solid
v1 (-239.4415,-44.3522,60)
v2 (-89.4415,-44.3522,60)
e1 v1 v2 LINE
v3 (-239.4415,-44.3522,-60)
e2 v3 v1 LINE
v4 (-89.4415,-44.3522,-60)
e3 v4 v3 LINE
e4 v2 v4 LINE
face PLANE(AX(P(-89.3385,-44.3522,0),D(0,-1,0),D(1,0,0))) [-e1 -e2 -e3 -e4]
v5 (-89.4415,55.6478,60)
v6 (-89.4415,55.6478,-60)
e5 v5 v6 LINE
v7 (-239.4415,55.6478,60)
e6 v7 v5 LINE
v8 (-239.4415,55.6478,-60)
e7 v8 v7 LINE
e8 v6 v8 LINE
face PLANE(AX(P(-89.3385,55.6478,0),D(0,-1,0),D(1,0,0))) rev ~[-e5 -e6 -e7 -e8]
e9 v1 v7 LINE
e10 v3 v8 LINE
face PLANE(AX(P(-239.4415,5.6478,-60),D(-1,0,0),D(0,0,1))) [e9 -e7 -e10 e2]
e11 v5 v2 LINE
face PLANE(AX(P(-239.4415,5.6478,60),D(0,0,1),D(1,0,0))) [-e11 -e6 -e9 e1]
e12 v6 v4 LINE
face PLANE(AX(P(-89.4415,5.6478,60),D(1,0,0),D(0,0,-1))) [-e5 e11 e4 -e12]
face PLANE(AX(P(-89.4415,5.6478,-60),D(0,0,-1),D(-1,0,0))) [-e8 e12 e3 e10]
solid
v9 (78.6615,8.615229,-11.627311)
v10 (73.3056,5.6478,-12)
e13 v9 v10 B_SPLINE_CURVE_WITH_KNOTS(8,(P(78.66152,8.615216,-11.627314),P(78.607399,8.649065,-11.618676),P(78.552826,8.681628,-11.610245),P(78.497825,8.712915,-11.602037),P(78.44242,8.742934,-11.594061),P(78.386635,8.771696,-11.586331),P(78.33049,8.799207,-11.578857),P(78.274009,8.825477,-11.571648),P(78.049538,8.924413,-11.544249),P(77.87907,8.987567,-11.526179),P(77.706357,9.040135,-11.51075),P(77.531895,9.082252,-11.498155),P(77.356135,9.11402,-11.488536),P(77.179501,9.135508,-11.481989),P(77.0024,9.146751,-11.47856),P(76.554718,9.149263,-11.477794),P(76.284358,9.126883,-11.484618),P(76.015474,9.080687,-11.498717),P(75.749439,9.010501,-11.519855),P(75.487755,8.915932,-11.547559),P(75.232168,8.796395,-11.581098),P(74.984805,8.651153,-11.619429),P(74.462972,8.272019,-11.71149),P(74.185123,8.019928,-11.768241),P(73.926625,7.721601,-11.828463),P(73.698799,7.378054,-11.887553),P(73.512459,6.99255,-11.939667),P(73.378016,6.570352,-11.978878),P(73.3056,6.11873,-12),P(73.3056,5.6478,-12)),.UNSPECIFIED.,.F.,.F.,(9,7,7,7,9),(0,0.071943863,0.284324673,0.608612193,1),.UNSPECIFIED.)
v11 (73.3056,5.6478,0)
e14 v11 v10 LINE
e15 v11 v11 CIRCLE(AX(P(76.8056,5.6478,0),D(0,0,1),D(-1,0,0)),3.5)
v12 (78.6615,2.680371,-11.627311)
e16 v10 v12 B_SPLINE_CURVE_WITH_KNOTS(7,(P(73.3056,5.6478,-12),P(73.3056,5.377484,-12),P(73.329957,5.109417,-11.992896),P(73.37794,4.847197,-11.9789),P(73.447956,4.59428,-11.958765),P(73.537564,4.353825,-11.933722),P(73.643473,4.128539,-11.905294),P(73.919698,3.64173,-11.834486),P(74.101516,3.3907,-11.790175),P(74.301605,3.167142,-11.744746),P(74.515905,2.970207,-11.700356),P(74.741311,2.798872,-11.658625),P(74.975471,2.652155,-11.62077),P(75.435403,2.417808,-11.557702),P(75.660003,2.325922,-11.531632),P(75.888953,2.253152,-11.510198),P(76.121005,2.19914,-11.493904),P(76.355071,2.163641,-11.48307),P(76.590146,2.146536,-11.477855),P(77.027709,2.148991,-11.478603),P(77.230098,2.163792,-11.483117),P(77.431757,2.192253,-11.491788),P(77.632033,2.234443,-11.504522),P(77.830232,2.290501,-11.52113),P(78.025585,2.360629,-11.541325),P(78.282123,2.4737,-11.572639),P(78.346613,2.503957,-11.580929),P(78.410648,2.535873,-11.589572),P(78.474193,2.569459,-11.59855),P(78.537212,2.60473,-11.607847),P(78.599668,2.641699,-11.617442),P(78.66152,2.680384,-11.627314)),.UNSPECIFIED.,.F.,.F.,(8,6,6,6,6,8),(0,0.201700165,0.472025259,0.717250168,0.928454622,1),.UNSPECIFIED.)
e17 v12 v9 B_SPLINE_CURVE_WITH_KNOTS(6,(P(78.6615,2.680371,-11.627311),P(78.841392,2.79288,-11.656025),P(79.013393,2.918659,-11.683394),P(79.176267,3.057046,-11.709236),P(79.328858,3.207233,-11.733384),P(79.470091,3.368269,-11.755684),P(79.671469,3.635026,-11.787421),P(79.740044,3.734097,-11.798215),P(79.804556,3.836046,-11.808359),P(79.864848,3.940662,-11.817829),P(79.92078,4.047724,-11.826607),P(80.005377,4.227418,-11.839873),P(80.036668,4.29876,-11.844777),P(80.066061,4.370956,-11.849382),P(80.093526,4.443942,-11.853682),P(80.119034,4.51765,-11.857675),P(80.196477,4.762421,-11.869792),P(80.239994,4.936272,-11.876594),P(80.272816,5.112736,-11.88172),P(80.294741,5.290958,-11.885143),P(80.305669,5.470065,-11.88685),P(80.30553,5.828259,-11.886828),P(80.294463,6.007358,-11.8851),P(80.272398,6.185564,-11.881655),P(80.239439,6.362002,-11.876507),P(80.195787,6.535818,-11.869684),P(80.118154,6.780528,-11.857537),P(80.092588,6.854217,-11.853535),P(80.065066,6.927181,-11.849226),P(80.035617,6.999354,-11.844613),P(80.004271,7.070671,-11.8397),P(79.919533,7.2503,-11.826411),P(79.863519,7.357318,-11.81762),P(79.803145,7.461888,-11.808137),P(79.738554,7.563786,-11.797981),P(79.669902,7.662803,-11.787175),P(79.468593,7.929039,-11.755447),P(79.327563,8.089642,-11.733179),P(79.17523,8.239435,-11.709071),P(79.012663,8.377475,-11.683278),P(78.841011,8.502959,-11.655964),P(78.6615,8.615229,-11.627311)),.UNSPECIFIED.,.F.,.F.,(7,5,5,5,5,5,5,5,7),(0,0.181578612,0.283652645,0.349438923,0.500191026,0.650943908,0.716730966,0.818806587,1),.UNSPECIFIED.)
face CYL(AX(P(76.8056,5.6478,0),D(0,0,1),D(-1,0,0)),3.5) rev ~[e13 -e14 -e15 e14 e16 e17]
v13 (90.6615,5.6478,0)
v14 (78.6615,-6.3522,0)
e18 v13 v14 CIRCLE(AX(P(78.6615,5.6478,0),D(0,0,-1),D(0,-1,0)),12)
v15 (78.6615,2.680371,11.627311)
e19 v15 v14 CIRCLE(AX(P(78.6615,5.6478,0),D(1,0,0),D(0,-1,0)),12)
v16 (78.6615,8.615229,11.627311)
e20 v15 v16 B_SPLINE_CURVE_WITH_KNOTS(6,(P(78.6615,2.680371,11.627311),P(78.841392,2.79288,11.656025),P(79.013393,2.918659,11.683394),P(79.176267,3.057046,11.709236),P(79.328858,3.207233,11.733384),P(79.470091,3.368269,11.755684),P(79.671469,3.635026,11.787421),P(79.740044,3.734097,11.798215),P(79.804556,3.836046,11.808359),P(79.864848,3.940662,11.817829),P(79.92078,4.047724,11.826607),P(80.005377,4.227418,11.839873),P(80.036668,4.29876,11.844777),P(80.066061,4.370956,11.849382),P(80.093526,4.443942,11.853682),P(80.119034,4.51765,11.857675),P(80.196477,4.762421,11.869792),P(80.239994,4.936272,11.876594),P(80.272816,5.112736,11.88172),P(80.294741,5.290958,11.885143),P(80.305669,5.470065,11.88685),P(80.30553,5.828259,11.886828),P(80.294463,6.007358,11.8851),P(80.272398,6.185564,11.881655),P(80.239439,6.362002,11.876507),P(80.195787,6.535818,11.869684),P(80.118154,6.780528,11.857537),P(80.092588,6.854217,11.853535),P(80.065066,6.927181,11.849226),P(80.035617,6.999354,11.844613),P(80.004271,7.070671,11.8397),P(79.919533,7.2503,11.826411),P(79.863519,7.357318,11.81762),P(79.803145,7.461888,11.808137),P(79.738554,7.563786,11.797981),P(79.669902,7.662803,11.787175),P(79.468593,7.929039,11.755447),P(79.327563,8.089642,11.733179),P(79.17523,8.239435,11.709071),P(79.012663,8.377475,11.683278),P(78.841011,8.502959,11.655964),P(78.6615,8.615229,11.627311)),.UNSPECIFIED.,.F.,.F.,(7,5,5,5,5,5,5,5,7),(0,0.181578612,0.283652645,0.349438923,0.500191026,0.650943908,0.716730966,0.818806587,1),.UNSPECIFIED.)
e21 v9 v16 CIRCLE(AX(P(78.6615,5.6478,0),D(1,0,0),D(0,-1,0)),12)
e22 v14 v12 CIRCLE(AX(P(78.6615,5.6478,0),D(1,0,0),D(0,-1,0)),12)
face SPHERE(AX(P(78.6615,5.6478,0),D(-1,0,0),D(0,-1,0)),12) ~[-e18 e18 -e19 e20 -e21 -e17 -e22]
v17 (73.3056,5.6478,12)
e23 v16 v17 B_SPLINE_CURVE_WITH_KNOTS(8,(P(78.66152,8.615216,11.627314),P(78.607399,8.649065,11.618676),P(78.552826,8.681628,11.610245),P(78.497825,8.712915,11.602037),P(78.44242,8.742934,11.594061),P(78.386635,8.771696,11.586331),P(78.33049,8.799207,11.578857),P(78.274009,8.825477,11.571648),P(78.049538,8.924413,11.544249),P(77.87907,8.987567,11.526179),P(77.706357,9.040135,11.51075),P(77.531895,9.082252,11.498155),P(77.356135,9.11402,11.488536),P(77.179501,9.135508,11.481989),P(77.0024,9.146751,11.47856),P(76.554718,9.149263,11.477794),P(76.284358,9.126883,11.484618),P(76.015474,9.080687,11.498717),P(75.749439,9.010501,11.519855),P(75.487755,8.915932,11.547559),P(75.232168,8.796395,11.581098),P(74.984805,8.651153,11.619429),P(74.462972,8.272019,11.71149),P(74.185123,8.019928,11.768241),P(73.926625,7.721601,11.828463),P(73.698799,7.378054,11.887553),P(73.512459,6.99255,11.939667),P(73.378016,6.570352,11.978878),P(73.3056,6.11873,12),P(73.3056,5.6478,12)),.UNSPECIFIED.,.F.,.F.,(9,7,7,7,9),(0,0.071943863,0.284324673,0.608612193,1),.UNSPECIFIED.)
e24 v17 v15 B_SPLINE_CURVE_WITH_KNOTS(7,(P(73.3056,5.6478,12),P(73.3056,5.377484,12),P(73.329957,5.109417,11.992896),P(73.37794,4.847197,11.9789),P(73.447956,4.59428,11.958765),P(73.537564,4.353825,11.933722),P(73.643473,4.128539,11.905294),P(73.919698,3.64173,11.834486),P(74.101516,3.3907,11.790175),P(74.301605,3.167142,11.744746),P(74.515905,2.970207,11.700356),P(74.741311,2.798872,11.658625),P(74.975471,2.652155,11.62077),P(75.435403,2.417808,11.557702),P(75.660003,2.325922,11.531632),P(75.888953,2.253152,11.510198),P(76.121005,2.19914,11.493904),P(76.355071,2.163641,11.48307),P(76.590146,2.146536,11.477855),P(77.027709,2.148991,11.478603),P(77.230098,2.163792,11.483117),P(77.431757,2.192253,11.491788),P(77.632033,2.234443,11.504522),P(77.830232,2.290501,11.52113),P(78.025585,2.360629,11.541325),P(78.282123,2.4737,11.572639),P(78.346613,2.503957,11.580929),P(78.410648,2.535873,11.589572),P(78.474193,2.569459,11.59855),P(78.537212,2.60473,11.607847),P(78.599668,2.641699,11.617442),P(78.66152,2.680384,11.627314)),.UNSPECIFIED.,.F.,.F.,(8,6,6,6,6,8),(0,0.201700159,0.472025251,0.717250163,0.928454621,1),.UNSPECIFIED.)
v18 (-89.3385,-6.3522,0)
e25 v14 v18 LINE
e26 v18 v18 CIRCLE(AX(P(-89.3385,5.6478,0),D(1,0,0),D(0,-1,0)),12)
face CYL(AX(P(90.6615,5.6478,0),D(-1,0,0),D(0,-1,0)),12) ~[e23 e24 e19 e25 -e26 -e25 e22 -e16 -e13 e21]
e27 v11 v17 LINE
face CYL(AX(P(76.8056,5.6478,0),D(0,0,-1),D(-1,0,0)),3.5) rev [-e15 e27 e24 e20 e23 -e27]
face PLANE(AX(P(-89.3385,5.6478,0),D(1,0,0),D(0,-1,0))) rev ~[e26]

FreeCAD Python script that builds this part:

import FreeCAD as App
import Part
import Sketcher

V = App.Vector


def edges_at(feature, points):
    """Names of the edges that pass closest to the given points."""
    edges = feature.Shape.Edges
    near = lambda p: min(range(len(edges)), key=lambda i: edges[i].distToShape(Part.Vertex(*p))[0])
    return sorted({f"Edge{near(p) + 1}" for p in points})

doc = App.newDocument("Part")
body = doc.addObject("PartDesign::Body", "Body")
body.AllowCompound = True

# Sketch on XY plane
sketch1 = body.newObject("Sketcher::SketchObject", "Sketch")
sketch1.AttachmentSupport = (doc.getObject("XY_Plane"), [""])
sketch1.MapMode = "FlatFace"
sketch1.addGeometry([
    Part.LineSegment(V(90.6615, 5.6478, 0), V(-89.3385, 5.6478, 0)),
    Part.LineSegment(V(-89.3385, 5.6478, 0), V(-89.3385, -6.3522, 0)),
    Part.LineSegment(V(-89.3385, -6.3522, 0), V(90.6615, -6.3522, 0)),
    Part.LineSegment(V(90.6615, -6.3522, 0), V(90.6615, 5.6478, 0)),
], False)
sketch1.addGeometry(Part.LineSegment(V(-89.3385, 5.6478, 0), V(90.6615, 5.6478, 0)), True)  # axis
sketch1.addConstraint([
    Sketcher.Constraint("Coincident", 0, 2, 1, 1),
    Sketcher.Constraint("Coincident", 1, 2, 2, 1),
    Sketcher.Constraint("Coincident", 2, 2, 3, 1),
    Sketcher.Constraint("Coincident", 3, 2, 0, 1),
    Sketcher.Constraint("Horizontal", 0),
    Sketcher.Constraint("Vertical", 1),
    Sketcher.Constraint("Horizontal", 2),
    Sketcher.Constraint("Vertical", 3),
    Sketcher.Constraint("Horizontal", 4),
    Sketcher.Constraint("Coincident", 4, 1, 0, 2),
    Sketcher.Constraint("Vertical", 2, 2, 4, 2),
    Sketcher.Constraint("DistanceX", 0, 2, 0, 1, 180.0),
    Sketcher.Constraint("DistanceY", 1, 2, 1, 1, 12.0),
    Sketcher.Constraint("DistanceX", 0, 2, -1, 1, 89.3385),
    Sketcher.Constraint("DistanceY", -1, 1, 0, 2, 5.6478),
])
revolution = body.newObject("PartDesign::Revolution", "Revolution")
revolution.Profile = sketch1
revolution.ReferenceAxis = (sketch1, ["Axis0"])
revolution.Angle = 360
doc.recompute()

fillet = body.newObject("PartDesign::Fillet", "Fillet")
fillet.Base = (revolution, edges_at(revolution, [(90.662, 17.648, 0)]))
fillet.Radius = 12

# Sketch on XY plane
sketch2 = body.newObject("Sketcher::SketchObject", "Sketch001")
sketch2.AttachmentSupport = (doc.getObject("XY_Plane"), [""])
sketch2.MapMode = "FlatFace"
sketch2.addGeometry(Part.Circle(V(76.8056, 5.6478, 0), V(0, 0, 1), 3.5), False)
sketch2.addConstraint([
    Sketcher.Constraint("Diameter", 0, 7.0),
    Sketcher.Constraint("DistanceX", -1, 1, 0, 3, 76.8056),
    Sketcher.Constraint("DistanceY", -1, 1, 0, 3, 5.6478),
])
pocket1 = body.newObject("PartDesign::Pocket", "Pocket")
pocket1.Profile = sketch2
pocket1.Length = 80
pocket1.Midplane = True

# Sketch on XZ plane
sketch3 = body.newObject("Sketcher::SketchObject", "Sketch002")
sketch3.AttachmentSupport = (doc.getObject("XZ_Plane"), [""])
sketch3.MapMode = "FlatFace"
sketch3.AttachmentOffset = App.Placement(V(0, 0, -5.6478), App.Rotation())
sketch3.addGeometry([
    Part.LineSegment(V(-239.4415, -60, 0), V(-89.4415, -60, 0)),
    Part.LineSegment(V(-89.4415, -60, 0), V(-89.4415, 60, 0)),
    Part.LineSegment(V(-89.4415, 60, 0), V(-239.4415, 60, 0)),
    Part.LineSegment(V(-239.4415, 60, 0), V(-239.4415, -60, 0)),
], False)
sketch3.addConstraint([
    Sketcher.Constraint("Coincident", 0, 2, 1, 1),
    Sketcher.Constraint("Coincident", 1, 2, 2, 1),
    Sketcher.Constraint("Coincident", 2, 2, 3, 1),
    Sketcher.Constraint("Coincident", 3, 2, 0, 1),
    Sketcher.Constraint("Horizontal", 0),
    Sketcher.Constraint("Vertical", 1),
    Sketcher.Constraint("Horizontal", 2),
    Sketcher.Constraint("Vertical", 3),
    Sketcher.Constraint("DistanceX", 0, 1, 0, 2, 150.0),
    Sketcher.Constraint("DistanceY", 1, 1, 1, 2, 120.0),
    Sketcher.Constraint("DistanceY", 0, 2, -1, 1, 60.0),
    Sketcher.Constraint("DistanceX", 0, 2, -1, 1, 89.4415),
])
pad1 = body.newObject("PartDesign::Pad", "Pad")
pad1.Profile = sketch3
pad1.Length = 100
pad1.Midplane = True

doc.recompute()
